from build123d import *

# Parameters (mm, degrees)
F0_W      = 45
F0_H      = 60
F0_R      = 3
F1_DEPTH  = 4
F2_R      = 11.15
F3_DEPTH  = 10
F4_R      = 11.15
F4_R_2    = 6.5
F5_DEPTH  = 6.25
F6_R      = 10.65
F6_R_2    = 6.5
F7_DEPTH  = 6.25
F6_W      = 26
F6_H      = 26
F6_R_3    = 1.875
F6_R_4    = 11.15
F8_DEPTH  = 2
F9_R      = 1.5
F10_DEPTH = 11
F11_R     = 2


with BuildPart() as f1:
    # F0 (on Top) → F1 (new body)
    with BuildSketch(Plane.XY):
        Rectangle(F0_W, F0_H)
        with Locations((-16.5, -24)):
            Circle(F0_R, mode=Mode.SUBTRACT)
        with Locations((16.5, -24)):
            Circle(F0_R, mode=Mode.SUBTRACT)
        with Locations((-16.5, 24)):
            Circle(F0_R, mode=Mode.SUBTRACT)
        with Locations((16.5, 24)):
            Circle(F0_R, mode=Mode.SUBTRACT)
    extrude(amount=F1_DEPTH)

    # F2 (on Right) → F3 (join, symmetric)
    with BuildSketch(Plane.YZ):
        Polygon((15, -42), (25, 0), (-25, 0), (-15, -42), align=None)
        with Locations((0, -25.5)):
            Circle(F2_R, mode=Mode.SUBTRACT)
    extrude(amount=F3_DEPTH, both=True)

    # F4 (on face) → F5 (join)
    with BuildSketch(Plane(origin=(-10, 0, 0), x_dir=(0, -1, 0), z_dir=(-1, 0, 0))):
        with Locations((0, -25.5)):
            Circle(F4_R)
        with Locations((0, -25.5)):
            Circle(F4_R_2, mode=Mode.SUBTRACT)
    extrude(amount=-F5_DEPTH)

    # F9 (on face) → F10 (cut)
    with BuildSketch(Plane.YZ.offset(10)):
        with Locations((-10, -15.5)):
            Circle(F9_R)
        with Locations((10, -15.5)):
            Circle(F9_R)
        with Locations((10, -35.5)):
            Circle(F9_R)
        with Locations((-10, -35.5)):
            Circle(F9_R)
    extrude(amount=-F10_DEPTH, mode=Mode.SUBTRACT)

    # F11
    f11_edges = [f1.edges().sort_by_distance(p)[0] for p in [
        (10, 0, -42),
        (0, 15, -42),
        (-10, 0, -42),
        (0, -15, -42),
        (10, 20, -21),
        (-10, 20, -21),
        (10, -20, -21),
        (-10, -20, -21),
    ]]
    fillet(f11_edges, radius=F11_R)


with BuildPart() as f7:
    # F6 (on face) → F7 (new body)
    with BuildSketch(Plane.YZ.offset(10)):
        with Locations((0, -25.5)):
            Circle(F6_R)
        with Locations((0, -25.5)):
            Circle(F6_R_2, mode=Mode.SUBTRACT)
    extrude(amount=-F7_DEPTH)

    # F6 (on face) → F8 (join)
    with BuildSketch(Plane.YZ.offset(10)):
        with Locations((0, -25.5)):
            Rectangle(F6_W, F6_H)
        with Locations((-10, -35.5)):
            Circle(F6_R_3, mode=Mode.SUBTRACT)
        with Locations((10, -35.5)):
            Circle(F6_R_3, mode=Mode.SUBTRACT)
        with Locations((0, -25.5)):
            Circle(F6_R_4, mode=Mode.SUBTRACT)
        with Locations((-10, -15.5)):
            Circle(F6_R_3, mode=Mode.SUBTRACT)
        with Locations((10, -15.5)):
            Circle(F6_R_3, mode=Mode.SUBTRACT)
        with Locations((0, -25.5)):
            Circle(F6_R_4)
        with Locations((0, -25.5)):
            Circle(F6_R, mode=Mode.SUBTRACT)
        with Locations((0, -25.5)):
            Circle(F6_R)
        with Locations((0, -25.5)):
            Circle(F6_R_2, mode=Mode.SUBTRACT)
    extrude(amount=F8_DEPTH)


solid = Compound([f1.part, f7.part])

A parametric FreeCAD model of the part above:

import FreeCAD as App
import Part
import Sketcher
from FreeCAD import Vector
Q = App.Units.Quantity


def edges_at(feature, points):
    """Names of the edges that pass closest to the given points."""
    edges = feature.Shape.Edges
    near = lambda p: min(range(len(edges)), key=lambda i: edges[i].distToShape(Part.Vertex(*p))[0])
    return sorted({f"Edge{near(p) + 1}" for p in points})

doc = App.newDocument("Part")
body = doc.addObject("PartDesign::Body", "Body")

# Sketch on XY plane
sketch1 = body.newObject("Sketcher::SketchObject", "Sketch")
sketch1.AttachmentSupport = (doc.getObject("XY_Plane"), [""])
sketch1.MapMode = "FlatFace"
sketch1.addGeometry([
    Part.LineSegment(Vector(-22.5, 30, 0), Vector(-22.5, -30, 0)),  # 0
    Part.LineSegment(Vector(-22.5, -30, 0), Vector(22.5, -30, 0)),  # 1
    Part.LineSegment(Vector(22.5, -30, 0), Vector(22.5, 30, 0)),  # 2
    Part.LineSegment(Vector(22.5, 30, 0), Vector(-22.5, 30, 0)),  # 3
    Part.Circle(Vector(-16.5, -24, 0), Vector(0, 0, 1), 3),  # 4
    Part.Circle(Vector(16.5, -24, 0), Vector(0, 0, 1), 3),  # 5
    Part.Circle(Vector(-16.5, 24, 0), Vector(0, 0, 1), 3),  # 6
    Part.Circle(Vector(16.5, 24, 0), Vector(0, 0, 1), 3),  # 7
], False)
sketch1.addConstraint([
    Sketcher.Constraint("Coincident", 0, 2, 1, 1),
    Sketcher.Constraint("Coincident", 1, 2, 2, 1),
    Sketcher.Constraint("Coincident", 2, 2, 3, 1),
    Sketcher.Constraint("Coincident", 3, 2, 0, 1),
    Sketcher.Constraint("Vertical", 0),
    Sketcher.Constraint("Horizontal", 1),
    Sketcher.Constraint("Vertical", 2),
    Sketcher.Constraint("Horizontal", 3),
    Sketcher.Constraint("Equal", 4, 5),
    Sketcher.Constraint("Equal", 5, 6),
    Sketcher.Constraint("Equal", 6, 7),
    Sketcher.Constraint("Symmetric", 5, 3, 6, 3, -1, 1),
    Sketcher.Constraint("Symmetric", 4, 3, 7, 3, -1, 1),
    Sketcher.Constraint("Symmetric", 0, 2, 2, 2, -1, 1),
    Sketcher.Constraint("Symmetric", 4, 3, 5, 3, -2),
    Sketcher.Constraint("Diameter", 4, Q("6 mm")),
    Sketcher.Constraint("DistanceX", 1, 1, 1, 2, Q("45 mm")),
    Sketcher.Constraint("DistanceY", 0, 2, 0, 1, Q("60 mm")),
    Sketcher.Constraint("DistanceY", 4, 3, -1, 1, Q("24 mm")),
    Sketcher.Constraint("DistanceX", 4, 3, 5, 3, Q("33 mm")),
])
pad1 = body.newObject("PartDesign::Pad", "Pad")
pad1.Profile = sketch1
pad1.Length = 4

# Sketch on YZ plane
sketch2 = body.newObject("Sketcher::SketchObject", "Sketch001")
sketch2.AttachmentSupport = (doc.getObject("YZ_Plane"), [""])
sketch2.MapMode = "FlatFace"
sketch2.addGeometry([
    Part.LineSegment(Vector(15, -42, 0), Vector(25, 0, 0)),  # 0
    Part.LineSegment(Vector(25, 0, 0), Vector(-25, 0, 0)),  # 1
    Part.LineSegment(Vector(-25, 0, 0), Vector(-15, -42, 0)),  # 2
    Part.LineSegment(Vector(-15, -42, 0), Vector(15, -42, 0)),  # 3
    Part.Circle(Vector(0, -26, 0), Vector(0, 0, 1), 11),  # 4
], False)
sketch2.addConstraint([
    Sketcher.Constraint("Coincident", 0, 2, 1, 1),
    Sketcher.Constraint("Coincident", 1, 2, 2, 1),
    Sketcher.Constraint("Coincident", 2, 2, 3, 1),
    Sketcher.Constraint("Coincident", 3, 2, 0, 1),
    Sketcher.Constraint("Horizontal", 1),
    Sketcher.Constraint("Horizontal", 3),
    Sketcher.Constraint("Symmetric", 0, 2, 1, 2, -1, 1),
    Sketcher.Constraint("PointOnObject", 4, 3, -2),
    Sketcher.Constraint("Equal", 0, 2),
    Sketcher.Constraint("Diameter", 4, Q("22.3 mm")),
    Sketcher.Constraint("DistanceX", 1, 2, 1, 1, Q("50 mm")),
    Sketcher.Constraint("DistanceX", 3, 1, 3, 2, Q("30 mm")),
    Sketcher.Constraint("DistanceY", 2, 2, -1, 1, Q("42 mm")),
    Sketcher.Constraint("DistanceY", 4, 3, -1, 1, Q("25.5 mm")),
])
pad2 = body.newObject("PartDesign::Pad", "Pad001")
pad2.Profile = sketch2
pad2.Length = 20
pad2.Midplane = True

# Sketch on YZ plane
sketch3 = body.newObject("Sketcher::SketchObject", "Sketch002")
sketch3.AttachmentSupport = (doc.getObject("YZ_Plane"), [""])
sketch3.MapMode = "FlatFace"
sketch3.AttachmentOffset = App.Placement(Vector(0, 0, -10), App.Rotation())
sketch3.addGeometry([
    Part.Circle(Vector(0, -26, 0), Vector(0, 0, 1), 11),
    Part.Circle(Vector(0, -26, 0), Vector(0, 0, 1), 6),
], False)
sketch3.addConstraint([
    Sketcher.Constraint("Coincident", 1, 3, 0, 3),
    Sketcher.Constraint("PointOnObject", 0, 3, -2),
    Sketcher.Constraint("Diameter", 1, Q("13 mm")),
    Sketcher.Constraint("Diameter", 0, Q("22.3 mm")),
    Sketcher.Constraint("DistanceY", 0, 3, -1, 1, Q("25.5 mm")),
])
pad3 = body.newObject("PartDesign::Pad", "Pad002")
pad3.Profile = sketch3
pad3.Length = 6.25

# Sketch on YZ plane
sketch4 = body.newObject("Sketcher::SketchObject", "Sketch003")
sketch4.AttachmentSupport = (doc.getObject("YZ_Plane"), [""])
sketch4.MapMode = "FlatFace"
sketch4.AttachmentOffset = App.Placement(Vector(0, 0, 10), App.Rotation())
sketch4.addGeometry([
    Part.Circle(Vector(-10, -15.5, 0), Vector(0, 0, 1), 1.5),
    Part.Circle(Vector(10, -15.5, 0), Vector(0, 0, 1), 1.5),
    Part.Circle(Vector(10, -35.5, 0), Vector(0, 0, 1), 1.5),
    Part.Circle(Vector(-10, -35.5, 0), Vector(0, 0, 1), 1.5),
], False)
sketch4.addConstraint([
    Sketcher.Constraint("Equal", 0, 1),
    Sketcher.Constraint("Equal", 1, 2),
    Sketcher.Constraint("Equal", 2, 3),
    Sketcher.Constraint("Symmetric", 0, 3, 1, 3, -2),
    Sketcher.Constraint("Symmetric", 2, 3, 3, 3, -2),
    Sketcher.Constraint("Vertical", 1, 3, 2, 3),
    Sketcher.Constraint("Diameter", 0, Q("3 mm")),
    Sketcher.Constraint("DistanceX", 0, 3, -1, 1, Q("10 mm")),
    Sketcher.Constraint("DistanceY", 2, 3, 1, 3, Q("20 mm")),
    Sketcher.Constraint("DistanceY", 0, 3, -1, 1, Q("15.5 mm")),
])
pocket1 = body.newObject("PartDesign::Pocket", "Pocket")
pocket1.Profile = sketch4
pocket1.Length = 11
doc.recompute()

fillet = body.newObject("PartDesign::Fillet", "Fillet")
fillet.Base = (pocket1, edges_at(pocket1, [
    (10, 0, -42),
    (0, 15, -42),
    (-10, 0, -42),
    (0, -15, -42),
    (10, 20, -21),
    (-10, 20, -21),
    (10, -20, -21),
    (-10, -20, -21),
]))
fillet.Radius = 2
body2 = doc.addObject("PartDesign::Body", "Body001")

# Sketch on YZ plane
sketch5 = body2.newObject("Sketcher::SketchObject", "Sketch004")
sketch5.AttachmentSupport = (doc.getObject("YZ_Plane001"), [""])
sketch5.MapMode = "FlatFace"
sketch5.AttachmentOffset = App.Placement(Vector(0, 0, 10), App.Rotation())
sketch5.addGeometry([
    Part.Circle(Vector(0, -26, 0), Vector(0, 0, 1), 11),
    Part.Circle(Vector(0, -26, 0), Vector(0, 0, 1), 6),
], False)
sketch5.addConstraint([
    Sketcher.Constraint("Coincident", 1, 3, 0, 3),
    Sketcher.Constraint("PointOnObject", 0, 3, -2),
    Sketcher.Constraint("Diameter", 1, Q("13 mm")),
    Sketcher.Constraint("Diameter", 0, Q("21.3 mm")),
    Sketcher.Constraint("DistanceY", 0, 3, -1, 1, Q("25.5 mm")),
])
pad4 = body2.newObject("PartDesign::Pad", "Pad003")
pad4.Profile = sketch5
pad4.Length = 6.25
pad4.Reversed = True

# Sketch on YZ plane
sketch6 = body2.newObject("Sketcher::SketchObject", "Sketch005")
sketch6.AttachmentSupport = (doc.getObject("YZ_Plane001"), [""])
sketch6.MapMode = "FlatFace"
sketch6.AttachmentOffset = App.Placement(Vector(0, 0, 10), App.Rotation())
sketch6.addGeometry([
    Part.LineSegment(Vector(-13, -12.5, 0), Vector(-13, -38.5, 0)),  # 0
    Part.LineSegment(Vector(-13, -38.5, 0), Vector(13, -38.5, 0)),  # 1
    Part.LineSegment(Vector(13, -38.5, 0), Vector(13, -12.5, 0)),  # 2
    Part.LineSegment(Vector(13, -12.5, 0), Vector(-13, -12.5, 0)),  # 3
    Part.Circle(Vector(-10, -35.5, 0), Vector(0, 0, 1), 1.9),  # 4
    Part.Circle(Vector(10, -35.5, 0), Vector(0, 0, 1), 1.9),  # 5
    Part.Circle(Vector(-10, -15.5, 0), Vector(0, 0, 1), 1.9),  # 6
    Part.Circle(Vector(0, -25.5, 0), Vector(0, 0, 1), 6.5),  # 7
    Part.Circle(Vector(10, -15.5, 0), Vector(0, 0, 1), 1.9),  # 8
], False)
sketch6.addConstraint([
    Sketcher.Constraint("Coincident", 0, 2, 1, 1),
    Sketcher.Constraint("Coincident", 1, 2, 2, 1),
    Sketcher.Constraint("Coincident", 2, 2, 3, 1),
    Sketcher.Constraint("Coincident", 3, 2, 0, 1),
    Sketcher.Constraint("Vertical", 0),
    Sketcher.Constraint("Horizontal", 1),
    Sketcher.Constraint("Vertical", 2),
    Sketcher.Constraint("Horizontal", 3),
    Sketcher.Constraint("Equal", 4, 5),
    Sketcher.Constraint("Equal", 5, 6),
    Sketcher.Constraint("Equal", 6, 8),
    Sketcher.Constraint("Symmetric", 4, 3, 5, 3, -2),
    Sketcher.Constraint("Symmetric", 6, 3, 8, 3, -2),
    Sketcher.Constraint("PointOnObject", 7, 3, -2),
    Sketcher.Constraint("Vertical", 4, 3, 6, 3),
    Sketcher.Constraint("Equal", 3, 0),
    Sketcher.Constraint("Diameter", 7, Q("13 mm")),
    Sketcher.Constraint("Diameter", 4, Q("3.75 mm")),
    Sketcher.Constraint("DistanceX", 1, 1, 1, 2, Q("26 mm")),
    Sketcher.Constraint("DistanceX", 4, 3, -1, 1, Q("10 mm")),
    Sketcher.Constraint("DistanceX", 0, 2, -1, 1, Q("13 mm")),
    Sketcher.Constraint("DistanceY", 4, 3, 6, 3, Q("20 mm")),
    Sketcher.Constraint("DistanceY", 4, 3, 7, 3, Q("10 mm")),
    Sketcher.Constraint("DistanceY", 0, 2, 4, 3, Q("3 mm")),
    Sketcher.Constraint("DistanceY", 4, 3, -1, 1, Q("35.5 mm")),
])
pad5 = body2.newObject("PartDesign::Pad", "Pad004")
pad5.Profile = sketch6
pad5.Length = 2

doc.recompute()
